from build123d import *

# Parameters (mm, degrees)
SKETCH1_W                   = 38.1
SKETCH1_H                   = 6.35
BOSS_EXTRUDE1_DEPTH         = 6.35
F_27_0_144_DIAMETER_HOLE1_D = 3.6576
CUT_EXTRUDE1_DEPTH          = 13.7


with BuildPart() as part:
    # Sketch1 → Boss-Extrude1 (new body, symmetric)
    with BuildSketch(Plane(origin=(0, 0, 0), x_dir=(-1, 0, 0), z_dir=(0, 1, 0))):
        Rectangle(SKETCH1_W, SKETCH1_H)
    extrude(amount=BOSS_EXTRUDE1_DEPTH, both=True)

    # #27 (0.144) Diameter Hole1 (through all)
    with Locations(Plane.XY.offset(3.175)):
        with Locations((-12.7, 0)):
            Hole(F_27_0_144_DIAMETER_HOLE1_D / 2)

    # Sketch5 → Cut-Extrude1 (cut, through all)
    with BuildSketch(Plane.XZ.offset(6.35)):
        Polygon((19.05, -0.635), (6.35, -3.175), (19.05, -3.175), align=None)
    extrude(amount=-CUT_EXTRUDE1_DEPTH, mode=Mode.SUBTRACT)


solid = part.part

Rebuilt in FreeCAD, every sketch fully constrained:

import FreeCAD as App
import Part
import Sketcher
Q = App.Units.Quantity

doc = App.newDocument("Part")
body = doc.addObject("PartDesign::Body", "Body")

# Sketch on XZ plane
sketch1 = body.newObject("Sketcher::SketchObject", "Sketch")
sketch1.AttachmentSupport = (doc.getObject("XZ_Plane"), [""])
sketch1.MapMode = "FlatFace"
sketch1.addGeometry([
    Part.LineSegment(App.Vector(19.05, 3.175, 0), App.Vector(19.05, -3.175, 0)),
    Part.LineSegment(App.Vector(19.05, -3.175, 0), App.Vector(-19.05, -3.175, 0)),
    Part.LineSegment(App.Vector(-19.05, -3.175, 0), App.Vector(-19.05, 3.175, 0)),
    Part.LineSegment(App.Vector(-19.05, 3.175, 0), App.Vector(19.05, 3.175, 0)),
], False)
sketch1.addConstraint([
    Sketcher.Constraint("Coincident", 0, 2, 1, 1),
    Sketcher.Constraint("Coincident", 1, 2, 2, 1),
    Sketcher.Constraint("Coincident", 2, 2, 3, 1),
    Sketcher.Constraint("Coincident", 3, 2, 0, 1),
    Sketcher.Constraint("Vertical", 0),
    Sketcher.Constraint("Horizontal", 1),
    Sketcher.Constraint("Vertical", 2),
    Sketcher.Constraint("Horizontal", 3),
    Sketcher.Constraint("Symmetric", 0, 2, 2, 2, -1, 1),
    Sketcher.Constraint("DistanceX", 1, 2, 1, 1, Q("1.5 in")),
    Sketcher.Constraint("DistanceY", 0, 2, 0, 1, Q("0.25 in")),
])
pad1 = body.newObject("PartDesign::Pad", "Pad")
pad1.Profile = sketch1
pad1.Length = Q("0.5 in")
pad1.Midplane = True

# Sketch on XY plane
sketch2 = body.newObject("Sketcher::SketchObject", "Sketch001")
sketch2.AttachmentSupport = (doc.getObject("XY_Plane"), [""])
sketch2.MapMode = "FlatFace"
sketch2.AttachmentOffset = App.Placement(App.Vector(0, 0, 0.125 * 25.4), App.Rotation())
sketch2.addGeometry(Part.Circle(App.Vector(-12.7, 0, 0), App.Vector(0, 0, 1), 1.8288), False)
sketch2.addConstraint([
    Sketcher.Constraint("PointOnObject", 0, 3, -1),
    Sketcher.Constraint("Diameter", 0, Q("0.144 in")),
    Sketcher.Constraint("DistanceX", 0, 3, -1, 1, Q("0.5 in")),
])
doc.recompute()
hole = body.newObject("PartDesign::Hole", "Hole")
hole.Profile = sketch2
hole.ThreadType = "None"
hole.Diameter = Q("0.144 in")
hole.DepthType = "ThroughAll"

# Sketch on XZ plane
sketch3 = body.newObject("Sketcher::SketchObject", "Sketch002")
sketch3.AttachmentSupport = (doc.getObject("XZ_Plane"), [""])
sketch3.MapMode = "FlatFace"
sketch3.AttachmentOffset = App.Placement(App.Vector(0, 0, 0.25 * 25.4), App.Rotation())
sketch3.addGeometry([
    Part.LineSegment(App.Vector(19.05, -0.635, 0), App.Vector(6.35, -3.175, 0)),
    Part.LineSegment(App.Vector(6.35, -3.175, 0), App.Vector(19.05, -3.175, 0)),
    Part.LineSegment(App.Vector(19.05, -3.175, 0), App.Vector(19.05, -0.635, 0)),
], False)
sketch3.addConstraint([
    Sketcher.Constraint("Coincident", 0, 2, 1, 1),
    Sketcher.Constraint("Coincident", 1, 2, 2, 1),
    Sketcher.Constraint("Coincident", 2, 2, 0, 1),
    Sketcher.Constraint("Horizontal", 1),
    Sketcher.Constraint("Vertical", 2),
    Sketcher.Constraint("DistanceX", 1, 1, 1, 2, Q("0.5 in")),
    Sketcher.Constraint("DistanceY", 2, 1, 2, 2, Q("0.1 in")),
    Sketcher.Constraint("DistanceX", -1, 1, 0, 2, Q("0.25 in")),
    Sketcher.Constraint("DistanceY", 0, 2, -1, 1, Q("0.125 in")),
])
pocket1 = body.newObject("PartDesign::Pocket", "Pocket")
pocket1.Profile = sketch3
pocket1.Type = "ThroughAll"

doc.recompute()
